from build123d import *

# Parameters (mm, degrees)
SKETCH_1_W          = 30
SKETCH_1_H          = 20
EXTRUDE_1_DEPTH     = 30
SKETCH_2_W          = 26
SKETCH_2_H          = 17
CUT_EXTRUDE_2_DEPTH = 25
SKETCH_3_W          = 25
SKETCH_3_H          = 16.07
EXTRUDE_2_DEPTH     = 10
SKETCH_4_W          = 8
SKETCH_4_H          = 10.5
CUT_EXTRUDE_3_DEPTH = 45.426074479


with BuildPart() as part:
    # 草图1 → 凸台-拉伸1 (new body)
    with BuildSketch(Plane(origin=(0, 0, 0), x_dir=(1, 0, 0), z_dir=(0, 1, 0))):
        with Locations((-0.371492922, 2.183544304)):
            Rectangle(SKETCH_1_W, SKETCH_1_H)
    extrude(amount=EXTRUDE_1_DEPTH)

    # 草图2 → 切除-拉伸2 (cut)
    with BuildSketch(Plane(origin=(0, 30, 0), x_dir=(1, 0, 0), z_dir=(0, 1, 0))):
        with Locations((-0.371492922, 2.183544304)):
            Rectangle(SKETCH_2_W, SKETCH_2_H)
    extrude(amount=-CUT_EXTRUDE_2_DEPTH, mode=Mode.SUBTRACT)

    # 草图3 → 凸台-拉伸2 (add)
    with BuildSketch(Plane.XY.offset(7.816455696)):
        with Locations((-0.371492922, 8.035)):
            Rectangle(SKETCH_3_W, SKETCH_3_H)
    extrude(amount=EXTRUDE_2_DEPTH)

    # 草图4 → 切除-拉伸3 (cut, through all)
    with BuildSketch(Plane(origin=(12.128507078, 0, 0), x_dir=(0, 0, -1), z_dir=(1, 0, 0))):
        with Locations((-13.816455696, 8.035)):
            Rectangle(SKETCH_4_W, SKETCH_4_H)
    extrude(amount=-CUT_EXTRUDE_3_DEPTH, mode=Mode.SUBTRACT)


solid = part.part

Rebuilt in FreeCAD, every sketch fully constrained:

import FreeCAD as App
import Part
import Sketcher
Q = App.Units.Quantity


def add_polygon(sketch, points):
    """Adds a closed chain of lines whose ends are joined by coincident constraints."""
    first, n = sketch.GeometryCount, len(points)
    for a, b in zip(points, points[1:] + points[:1]):
        sketch.addGeometry(Part.LineSegment(App.Vector(*a, 0), App.Vector(*b, 0)), False)
    for i in range(n):
        sketch.addConstraint(Sketcher.Constraint("Coincident", first + i, 2, first + (i + 1) % n, 1))

doc = App.newDocument("Part")
body = doc.addObject("PartDesign::Body", "Body")

sketch1 = body.newObject("Sketcher::SketchObject", "Sketch")
sketch1.AttachmentSupport = (doc.getObject("XZ_Plane"), [""])
sketch1.MapMode = "FlatFace"
add_polygon(sketch1, [(-15, -12), (-15, 8), (15, 8), (15, -12)])
sketch1.addConstraint([
    Sketcher.Constraint("Vertical", 0),
    Sketcher.Constraint("Horizontal", 1),
    Sketcher.Constraint("Vertical", 2),
    Sketcher.Constraint("Horizontal", 3),
    Sketcher.Constraint("DistanceX", 1, 1, 1, 2, Q("30 mm")),
    Sketcher.Constraint("DistanceY", 0, 1, 0, 2, Q("20 mm")),
    Sketcher.Constraint("DistanceX", 0, 2, -1, 1, Q("15.371493 mm")),
    Sketcher.Constraint("DistanceY", -1, 1, 0, 2, Q("7.816456 mm")),
])
pad1 = body.newObject("PartDesign::Pad", "Pad")
pad1.Profile = sketch1
pad1.Length = 30
pad1.Reversed = True

sketch2 = body.newObject("Sketcher::SketchObject", "Sketch001")
sketch2.AttachmentSupport = (doc.getObject("XZ_Plane"), [""])
sketch2.MapMode = "FlatFace"
sketch2.AttachmentOffset = App.Placement(App.Vector(0, 0, -30), App.Rotation())
add_polygon(sketch2, [(-13, -11), (-13, 6), (13, 6), (13, -11)])
sketch2.addConstraint([
    Sketcher.Constraint("Vertical", 0),
    Sketcher.Constraint("Horizontal", 1),
    Sketcher.Constraint("Vertical", 2),
    Sketcher.Constraint("Horizontal", 3),
    Sketcher.Constraint("DistanceX", 1, 1, 1, 2, Q("26 mm")),
    Sketcher.Constraint("DistanceY", 0, 1, 0, 2, Q("17 mm")),
    Sketcher.Constraint("DistanceX", 0, 2, -1, 1, Q("13.371493 mm")),
    Sketcher.Constraint("DistanceY", -1, 1, 0, 2, Q("6.316456 mm")),
])
pocket1 = body.newObject("PartDesign::Pocket", "Pocket")
pocket1.Profile = sketch2
pocket1.Length = 25
pocket1.Reversed = True

sketch3 = body.newObject("Sketcher::SketchObject", "Sketch002")
sketch3.AttachmentSupport = (doc.getObject("XY_Plane"), [""])
sketch3.MapMode = "FlatFace"
sketch3.AttachmentOffset = App.Placement(App.Vector(0, 0, 7.816456), App.Rotation())
add_polygon(sketch3, [(-13, 16), (-13, 0), (12, 0), (12, 16)])
sketch3.addConstraint([
    Sketcher.Constraint("Vertical", 0),
    Sketcher.Constraint("Horizontal", 1),
    Sketcher.Constraint("Vertical", 2),
    Sketcher.Constraint("Horizontal", 3),
    Sketcher.Constraint("PointOnObject", 0, 2, -1),
    Sketcher.Constraint("DistanceX", 1, 1, 1, 2, Q("25 mm")),
    Sketcher.Constraint("DistanceY", 0, 2, 0, 1, Q("16.07 mm")),
    Sketcher.Constraint("DistanceX", 0, 2, -1, 1, Q("12.871493 mm")),
])
pad2 = body.newObject("PartDesign::Pad", "Pad001")
pad2.Profile = sketch3
pad2.Length = 10

sketch4 = body.newObject("Sketcher::SketchObject", "Sketch003")
sketch4.AttachmentSupport = (doc.getObject("YZ_Plane"), [""])
sketch4.MapMode = "FlatFace"
sketch4.AttachmentOffset = App.Placement(App.Vector(0, 0, 12.128507), App.Rotation())
add_polygon(sketch4, [(13, 18), (3, 18), (3, 10), (13, 10)])
sketch4.addConstraint([
    Sketcher.Constraint("Horizontal", 0),
    Sketcher.Constraint("Vertical", 1),
    Sketcher.Constraint("Horizontal", 2),
    Sketcher.Constraint("Vertical", 3),
    Sketcher.Constraint("DistanceY", 1, 2, 1, 1, Q("8 mm")),
    Sketcher.Constraint("DistanceX", 0, 2, 0, 1, Q("10.5 mm")),
    Sketcher.Constraint("DistanceX", -1, 1, 0, 2, Q("2.785 mm")),
    Sketcher.Constraint("DistanceY", -1, 1, 0, 2, Q("17.816456 mm")),
])
pocket2 = body.newObject("PartDesign::Pocket", "Pocket001")
pocket2.Profile = sketch4
pocket2.Type = "ThroughAll"

doc.recompute()
